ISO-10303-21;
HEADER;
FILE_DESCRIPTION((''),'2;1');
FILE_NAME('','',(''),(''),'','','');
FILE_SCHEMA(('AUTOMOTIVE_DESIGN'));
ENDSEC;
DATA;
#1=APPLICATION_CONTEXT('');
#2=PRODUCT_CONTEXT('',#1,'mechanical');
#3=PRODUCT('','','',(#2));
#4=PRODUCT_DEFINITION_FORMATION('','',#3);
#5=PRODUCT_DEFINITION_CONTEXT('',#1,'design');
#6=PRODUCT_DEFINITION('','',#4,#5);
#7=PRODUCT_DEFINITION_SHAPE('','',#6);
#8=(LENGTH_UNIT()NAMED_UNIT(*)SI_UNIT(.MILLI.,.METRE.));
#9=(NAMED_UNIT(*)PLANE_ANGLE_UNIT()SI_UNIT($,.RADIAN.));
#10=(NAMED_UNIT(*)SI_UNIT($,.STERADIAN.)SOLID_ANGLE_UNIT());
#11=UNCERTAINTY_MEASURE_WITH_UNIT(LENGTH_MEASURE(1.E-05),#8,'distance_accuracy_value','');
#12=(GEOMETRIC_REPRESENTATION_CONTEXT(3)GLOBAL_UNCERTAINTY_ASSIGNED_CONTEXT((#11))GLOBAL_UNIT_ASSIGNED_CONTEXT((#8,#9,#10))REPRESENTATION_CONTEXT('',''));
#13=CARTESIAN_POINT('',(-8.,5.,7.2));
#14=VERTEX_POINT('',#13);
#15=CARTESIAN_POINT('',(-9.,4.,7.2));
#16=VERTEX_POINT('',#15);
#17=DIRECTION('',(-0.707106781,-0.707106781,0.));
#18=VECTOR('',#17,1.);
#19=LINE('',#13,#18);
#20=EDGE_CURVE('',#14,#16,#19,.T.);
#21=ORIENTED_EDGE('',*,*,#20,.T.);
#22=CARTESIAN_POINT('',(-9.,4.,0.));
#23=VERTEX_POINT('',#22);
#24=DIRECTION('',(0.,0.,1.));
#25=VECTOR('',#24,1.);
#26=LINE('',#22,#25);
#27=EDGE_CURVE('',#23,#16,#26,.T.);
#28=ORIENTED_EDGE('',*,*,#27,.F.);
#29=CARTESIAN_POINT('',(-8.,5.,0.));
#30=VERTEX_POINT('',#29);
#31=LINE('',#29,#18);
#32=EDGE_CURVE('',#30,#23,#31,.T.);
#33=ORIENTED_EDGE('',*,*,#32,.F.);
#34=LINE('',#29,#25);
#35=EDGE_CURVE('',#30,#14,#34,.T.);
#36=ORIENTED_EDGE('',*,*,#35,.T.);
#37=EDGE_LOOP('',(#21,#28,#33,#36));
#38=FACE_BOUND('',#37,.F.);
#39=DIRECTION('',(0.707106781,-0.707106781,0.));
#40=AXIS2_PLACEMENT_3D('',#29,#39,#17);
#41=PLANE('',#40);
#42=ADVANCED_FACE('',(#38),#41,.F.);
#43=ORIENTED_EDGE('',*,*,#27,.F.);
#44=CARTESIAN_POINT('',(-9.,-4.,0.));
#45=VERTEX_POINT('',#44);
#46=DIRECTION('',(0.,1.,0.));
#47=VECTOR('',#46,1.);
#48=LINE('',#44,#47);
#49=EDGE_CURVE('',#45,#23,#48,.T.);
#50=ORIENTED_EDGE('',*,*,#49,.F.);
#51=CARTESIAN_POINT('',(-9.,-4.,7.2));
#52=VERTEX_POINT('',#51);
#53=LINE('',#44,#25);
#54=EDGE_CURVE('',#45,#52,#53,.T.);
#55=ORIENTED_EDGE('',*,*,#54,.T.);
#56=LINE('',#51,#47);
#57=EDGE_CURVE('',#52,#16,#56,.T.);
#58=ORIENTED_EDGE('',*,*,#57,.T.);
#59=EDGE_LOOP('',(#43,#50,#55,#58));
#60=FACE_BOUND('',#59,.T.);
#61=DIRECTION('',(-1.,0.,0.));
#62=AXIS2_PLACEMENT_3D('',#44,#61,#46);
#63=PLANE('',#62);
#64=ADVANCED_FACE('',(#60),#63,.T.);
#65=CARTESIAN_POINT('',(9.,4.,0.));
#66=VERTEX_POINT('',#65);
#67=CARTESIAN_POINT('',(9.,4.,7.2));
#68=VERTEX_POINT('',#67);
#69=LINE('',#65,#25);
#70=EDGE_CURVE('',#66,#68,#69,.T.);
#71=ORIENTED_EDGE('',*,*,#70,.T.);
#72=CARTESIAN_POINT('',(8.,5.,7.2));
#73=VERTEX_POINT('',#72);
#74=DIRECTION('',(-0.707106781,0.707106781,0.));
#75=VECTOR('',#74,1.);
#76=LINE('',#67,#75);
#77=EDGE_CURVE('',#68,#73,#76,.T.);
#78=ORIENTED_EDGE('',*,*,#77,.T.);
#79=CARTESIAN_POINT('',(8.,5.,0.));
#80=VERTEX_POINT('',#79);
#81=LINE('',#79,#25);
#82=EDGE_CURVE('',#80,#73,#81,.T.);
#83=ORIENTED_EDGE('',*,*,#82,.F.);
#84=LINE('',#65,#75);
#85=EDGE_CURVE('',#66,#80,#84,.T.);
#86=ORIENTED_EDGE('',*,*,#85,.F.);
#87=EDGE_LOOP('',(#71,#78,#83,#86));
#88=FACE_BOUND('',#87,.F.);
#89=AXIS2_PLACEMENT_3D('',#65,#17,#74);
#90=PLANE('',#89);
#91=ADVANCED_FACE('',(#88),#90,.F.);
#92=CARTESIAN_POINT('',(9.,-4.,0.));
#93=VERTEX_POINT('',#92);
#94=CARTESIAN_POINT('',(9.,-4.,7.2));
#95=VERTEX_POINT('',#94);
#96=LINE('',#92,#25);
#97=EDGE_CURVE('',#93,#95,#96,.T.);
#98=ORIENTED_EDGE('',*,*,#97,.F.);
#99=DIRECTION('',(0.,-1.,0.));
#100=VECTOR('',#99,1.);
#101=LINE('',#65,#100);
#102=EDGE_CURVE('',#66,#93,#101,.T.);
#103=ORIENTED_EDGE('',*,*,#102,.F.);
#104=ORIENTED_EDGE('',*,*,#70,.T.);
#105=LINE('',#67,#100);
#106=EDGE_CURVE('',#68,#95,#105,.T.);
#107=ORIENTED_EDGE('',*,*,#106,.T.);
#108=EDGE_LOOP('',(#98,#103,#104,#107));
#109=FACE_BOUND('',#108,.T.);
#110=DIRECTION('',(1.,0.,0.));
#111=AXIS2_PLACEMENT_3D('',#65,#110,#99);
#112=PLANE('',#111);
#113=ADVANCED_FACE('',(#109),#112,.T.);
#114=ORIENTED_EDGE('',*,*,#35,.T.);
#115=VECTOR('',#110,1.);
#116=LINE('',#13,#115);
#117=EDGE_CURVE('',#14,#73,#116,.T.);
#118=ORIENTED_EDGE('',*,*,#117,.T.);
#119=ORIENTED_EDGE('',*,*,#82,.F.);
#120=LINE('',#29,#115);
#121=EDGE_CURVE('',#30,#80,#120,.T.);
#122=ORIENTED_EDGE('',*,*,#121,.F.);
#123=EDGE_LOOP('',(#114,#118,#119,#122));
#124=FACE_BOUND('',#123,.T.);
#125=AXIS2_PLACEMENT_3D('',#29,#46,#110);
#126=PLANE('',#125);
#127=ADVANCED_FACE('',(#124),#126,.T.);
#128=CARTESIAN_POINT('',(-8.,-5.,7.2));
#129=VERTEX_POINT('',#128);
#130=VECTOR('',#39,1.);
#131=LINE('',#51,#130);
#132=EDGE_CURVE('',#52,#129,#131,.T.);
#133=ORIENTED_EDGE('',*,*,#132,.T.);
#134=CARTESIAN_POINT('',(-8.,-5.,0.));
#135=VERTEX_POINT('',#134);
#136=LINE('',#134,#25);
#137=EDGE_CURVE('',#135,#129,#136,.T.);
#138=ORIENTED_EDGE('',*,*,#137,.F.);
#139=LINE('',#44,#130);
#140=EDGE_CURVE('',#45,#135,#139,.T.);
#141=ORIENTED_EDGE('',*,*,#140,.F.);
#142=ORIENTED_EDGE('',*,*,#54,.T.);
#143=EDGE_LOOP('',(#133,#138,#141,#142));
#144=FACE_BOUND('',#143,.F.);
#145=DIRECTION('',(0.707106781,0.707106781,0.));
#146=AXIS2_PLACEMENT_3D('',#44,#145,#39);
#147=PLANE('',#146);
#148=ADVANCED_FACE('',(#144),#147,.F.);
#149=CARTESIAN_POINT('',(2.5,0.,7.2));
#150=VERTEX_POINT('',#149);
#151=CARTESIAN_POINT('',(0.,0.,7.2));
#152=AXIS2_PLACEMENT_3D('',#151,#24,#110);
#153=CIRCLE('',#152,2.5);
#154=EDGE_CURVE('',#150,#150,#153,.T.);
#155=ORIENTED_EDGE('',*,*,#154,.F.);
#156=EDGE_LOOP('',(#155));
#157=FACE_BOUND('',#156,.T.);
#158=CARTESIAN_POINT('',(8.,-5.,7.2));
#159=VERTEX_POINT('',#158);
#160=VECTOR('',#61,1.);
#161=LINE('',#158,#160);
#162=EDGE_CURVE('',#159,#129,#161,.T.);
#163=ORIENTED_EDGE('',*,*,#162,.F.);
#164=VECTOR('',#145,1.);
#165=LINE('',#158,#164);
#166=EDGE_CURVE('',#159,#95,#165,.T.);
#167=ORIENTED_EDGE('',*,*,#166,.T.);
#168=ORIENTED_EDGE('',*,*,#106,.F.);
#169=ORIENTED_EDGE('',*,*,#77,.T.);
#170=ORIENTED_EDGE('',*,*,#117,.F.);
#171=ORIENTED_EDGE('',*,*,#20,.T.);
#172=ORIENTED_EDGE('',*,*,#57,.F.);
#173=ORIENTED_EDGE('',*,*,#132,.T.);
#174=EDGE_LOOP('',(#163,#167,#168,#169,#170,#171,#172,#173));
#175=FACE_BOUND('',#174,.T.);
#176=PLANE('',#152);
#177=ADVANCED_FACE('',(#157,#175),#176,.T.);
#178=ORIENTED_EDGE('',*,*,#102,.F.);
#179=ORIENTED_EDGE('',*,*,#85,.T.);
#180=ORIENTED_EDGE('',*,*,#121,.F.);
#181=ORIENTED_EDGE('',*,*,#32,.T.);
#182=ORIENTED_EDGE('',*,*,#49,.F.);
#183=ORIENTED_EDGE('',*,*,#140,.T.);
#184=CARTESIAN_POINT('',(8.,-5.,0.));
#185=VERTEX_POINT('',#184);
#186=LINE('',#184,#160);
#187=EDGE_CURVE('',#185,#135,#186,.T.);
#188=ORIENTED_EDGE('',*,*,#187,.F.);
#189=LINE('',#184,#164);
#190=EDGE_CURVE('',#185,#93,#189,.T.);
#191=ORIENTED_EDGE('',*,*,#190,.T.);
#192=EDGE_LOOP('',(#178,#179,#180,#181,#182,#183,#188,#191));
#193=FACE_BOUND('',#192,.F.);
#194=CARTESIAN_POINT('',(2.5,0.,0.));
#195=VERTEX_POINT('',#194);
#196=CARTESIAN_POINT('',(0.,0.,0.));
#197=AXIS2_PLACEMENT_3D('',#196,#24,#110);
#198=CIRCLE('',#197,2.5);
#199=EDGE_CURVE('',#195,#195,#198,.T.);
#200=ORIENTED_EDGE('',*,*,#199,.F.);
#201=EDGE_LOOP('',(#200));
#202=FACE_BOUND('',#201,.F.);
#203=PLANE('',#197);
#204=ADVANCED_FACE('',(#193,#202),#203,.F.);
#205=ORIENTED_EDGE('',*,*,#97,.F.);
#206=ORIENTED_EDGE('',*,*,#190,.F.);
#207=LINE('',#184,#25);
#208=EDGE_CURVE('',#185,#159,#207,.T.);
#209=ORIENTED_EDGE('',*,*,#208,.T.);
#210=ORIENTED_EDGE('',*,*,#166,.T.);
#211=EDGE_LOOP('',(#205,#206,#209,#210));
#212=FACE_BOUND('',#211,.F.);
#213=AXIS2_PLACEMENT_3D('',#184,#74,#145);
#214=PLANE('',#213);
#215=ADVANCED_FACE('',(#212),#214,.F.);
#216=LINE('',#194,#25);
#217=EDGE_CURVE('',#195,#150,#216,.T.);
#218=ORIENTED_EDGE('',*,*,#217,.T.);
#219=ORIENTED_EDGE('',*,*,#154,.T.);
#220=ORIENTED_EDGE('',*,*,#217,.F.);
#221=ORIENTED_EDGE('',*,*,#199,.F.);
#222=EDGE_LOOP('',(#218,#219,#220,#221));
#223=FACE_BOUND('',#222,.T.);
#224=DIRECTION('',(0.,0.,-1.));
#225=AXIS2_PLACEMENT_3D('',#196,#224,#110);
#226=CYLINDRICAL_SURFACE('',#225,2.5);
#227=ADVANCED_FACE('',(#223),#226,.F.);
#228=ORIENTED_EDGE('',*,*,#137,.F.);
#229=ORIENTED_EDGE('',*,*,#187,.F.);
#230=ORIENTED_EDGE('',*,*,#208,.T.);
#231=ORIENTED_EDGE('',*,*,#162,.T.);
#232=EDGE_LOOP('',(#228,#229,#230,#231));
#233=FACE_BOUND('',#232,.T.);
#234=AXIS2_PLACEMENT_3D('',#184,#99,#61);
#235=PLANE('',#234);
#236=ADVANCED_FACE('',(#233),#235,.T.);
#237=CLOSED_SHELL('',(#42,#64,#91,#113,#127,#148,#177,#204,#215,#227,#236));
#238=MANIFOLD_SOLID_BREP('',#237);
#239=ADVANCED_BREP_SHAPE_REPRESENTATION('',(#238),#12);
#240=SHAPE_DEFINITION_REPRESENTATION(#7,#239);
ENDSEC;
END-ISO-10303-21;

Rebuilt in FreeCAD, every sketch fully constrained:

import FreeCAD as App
import Part
import Sketcher


def add_polygon(sketch, points):
    """Adds a closed chain of lines whose ends are joined by coincident constraints."""
    first, n = sketch.GeometryCount, len(points)
    for a, b in zip(points, points[1:] + points[:1]):
        sketch.addGeometry(Part.LineSegment(App.Vector(*a, 0), App.Vector(*b, 0)), False)
    for i in range(n):
        sketch.addConstraint(Sketcher.Constraint("Coincident", first + i, 2, first + (i + 1) % n, 1))

doc = App.newDocument("Part")
body = doc.addObject("PartDesign::Body", "Body")

sketch1 = body.newObject("Sketcher::SketchObject", "Sketch")
sketch1.AttachmentSupport = (doc.getObject("XY_Plane"), [""])
sketch1.MapMode = "FlatFace"
add_polygon(sketch1, [(8, 5), (-8, 5), (-9, 4), (-9, -4), (-8, -5), (8, -5), (9, -4), (9, 4)])
sketch1.addGeometry(Part.Circle(App.Vector(0, 0, 0), App.Vector(0, 0, 1), 2.5), False)
sketch1.addConstraint(Sketcher.Constraint("Horizontal", 0))
sketch1.addConstraint(Sketcher.Constraint("Vertical", 2))
sketch1.addConstraint(Sketcher.Constraint("Horizontal", 4))
sketch1.addConstraint(Sketcher.Constraint("Vertical", 6))
sketch1.addConstraint(Sketcher.Constraint("Coincident", 8, 3, -1, 1))
sketch1.addConstraint(Sketcher.Constraint("Symmetric", 0, 2, 4, 2, -1, 1))
sketch1.addConstraint(Sketcher.Constraint("Symmetric", 1, 2, 5, 2, -1, 1))
sketch1.addConstraint(Sketcher.Constraint("Perpendicular", 1, 3))
sketch1.addConstraint(Sketcher.Constraint("Perpendicular", 5, 7))
sketch1.addConstraint(Sketcher.Constraint("Horizontal", 2, 2, 5, 2))
sketch1.addConstraint(Sketcher.Constraint("Horizontal", 1, 2, 6, 2))
sketch1.addConstraint(Sketcher.Constraint("Vertical", 0, 2, 3, 2))
sketch1.addConstraint(Sketcher.Constraint("Diameter", 8, 5.0))
sketch1.addConstraint(Sketcher.Constraint("DistanceY", -1, 1, 0, 2, 5.0))
sketch1.addConstraint(Sketcher.Constraint("DistanceX", 1, 2, 0, 2, 1.0))
sketch1.addConstraint(Sketcher.Constraint("DistanceX", 2, 2, 5, 2, 18.0))
pad1 = body.newObject("PartDesign::Pad", "Pad")
pad1.Profile = sketch1
pad1.Length = 7.2

doc.recompute()
